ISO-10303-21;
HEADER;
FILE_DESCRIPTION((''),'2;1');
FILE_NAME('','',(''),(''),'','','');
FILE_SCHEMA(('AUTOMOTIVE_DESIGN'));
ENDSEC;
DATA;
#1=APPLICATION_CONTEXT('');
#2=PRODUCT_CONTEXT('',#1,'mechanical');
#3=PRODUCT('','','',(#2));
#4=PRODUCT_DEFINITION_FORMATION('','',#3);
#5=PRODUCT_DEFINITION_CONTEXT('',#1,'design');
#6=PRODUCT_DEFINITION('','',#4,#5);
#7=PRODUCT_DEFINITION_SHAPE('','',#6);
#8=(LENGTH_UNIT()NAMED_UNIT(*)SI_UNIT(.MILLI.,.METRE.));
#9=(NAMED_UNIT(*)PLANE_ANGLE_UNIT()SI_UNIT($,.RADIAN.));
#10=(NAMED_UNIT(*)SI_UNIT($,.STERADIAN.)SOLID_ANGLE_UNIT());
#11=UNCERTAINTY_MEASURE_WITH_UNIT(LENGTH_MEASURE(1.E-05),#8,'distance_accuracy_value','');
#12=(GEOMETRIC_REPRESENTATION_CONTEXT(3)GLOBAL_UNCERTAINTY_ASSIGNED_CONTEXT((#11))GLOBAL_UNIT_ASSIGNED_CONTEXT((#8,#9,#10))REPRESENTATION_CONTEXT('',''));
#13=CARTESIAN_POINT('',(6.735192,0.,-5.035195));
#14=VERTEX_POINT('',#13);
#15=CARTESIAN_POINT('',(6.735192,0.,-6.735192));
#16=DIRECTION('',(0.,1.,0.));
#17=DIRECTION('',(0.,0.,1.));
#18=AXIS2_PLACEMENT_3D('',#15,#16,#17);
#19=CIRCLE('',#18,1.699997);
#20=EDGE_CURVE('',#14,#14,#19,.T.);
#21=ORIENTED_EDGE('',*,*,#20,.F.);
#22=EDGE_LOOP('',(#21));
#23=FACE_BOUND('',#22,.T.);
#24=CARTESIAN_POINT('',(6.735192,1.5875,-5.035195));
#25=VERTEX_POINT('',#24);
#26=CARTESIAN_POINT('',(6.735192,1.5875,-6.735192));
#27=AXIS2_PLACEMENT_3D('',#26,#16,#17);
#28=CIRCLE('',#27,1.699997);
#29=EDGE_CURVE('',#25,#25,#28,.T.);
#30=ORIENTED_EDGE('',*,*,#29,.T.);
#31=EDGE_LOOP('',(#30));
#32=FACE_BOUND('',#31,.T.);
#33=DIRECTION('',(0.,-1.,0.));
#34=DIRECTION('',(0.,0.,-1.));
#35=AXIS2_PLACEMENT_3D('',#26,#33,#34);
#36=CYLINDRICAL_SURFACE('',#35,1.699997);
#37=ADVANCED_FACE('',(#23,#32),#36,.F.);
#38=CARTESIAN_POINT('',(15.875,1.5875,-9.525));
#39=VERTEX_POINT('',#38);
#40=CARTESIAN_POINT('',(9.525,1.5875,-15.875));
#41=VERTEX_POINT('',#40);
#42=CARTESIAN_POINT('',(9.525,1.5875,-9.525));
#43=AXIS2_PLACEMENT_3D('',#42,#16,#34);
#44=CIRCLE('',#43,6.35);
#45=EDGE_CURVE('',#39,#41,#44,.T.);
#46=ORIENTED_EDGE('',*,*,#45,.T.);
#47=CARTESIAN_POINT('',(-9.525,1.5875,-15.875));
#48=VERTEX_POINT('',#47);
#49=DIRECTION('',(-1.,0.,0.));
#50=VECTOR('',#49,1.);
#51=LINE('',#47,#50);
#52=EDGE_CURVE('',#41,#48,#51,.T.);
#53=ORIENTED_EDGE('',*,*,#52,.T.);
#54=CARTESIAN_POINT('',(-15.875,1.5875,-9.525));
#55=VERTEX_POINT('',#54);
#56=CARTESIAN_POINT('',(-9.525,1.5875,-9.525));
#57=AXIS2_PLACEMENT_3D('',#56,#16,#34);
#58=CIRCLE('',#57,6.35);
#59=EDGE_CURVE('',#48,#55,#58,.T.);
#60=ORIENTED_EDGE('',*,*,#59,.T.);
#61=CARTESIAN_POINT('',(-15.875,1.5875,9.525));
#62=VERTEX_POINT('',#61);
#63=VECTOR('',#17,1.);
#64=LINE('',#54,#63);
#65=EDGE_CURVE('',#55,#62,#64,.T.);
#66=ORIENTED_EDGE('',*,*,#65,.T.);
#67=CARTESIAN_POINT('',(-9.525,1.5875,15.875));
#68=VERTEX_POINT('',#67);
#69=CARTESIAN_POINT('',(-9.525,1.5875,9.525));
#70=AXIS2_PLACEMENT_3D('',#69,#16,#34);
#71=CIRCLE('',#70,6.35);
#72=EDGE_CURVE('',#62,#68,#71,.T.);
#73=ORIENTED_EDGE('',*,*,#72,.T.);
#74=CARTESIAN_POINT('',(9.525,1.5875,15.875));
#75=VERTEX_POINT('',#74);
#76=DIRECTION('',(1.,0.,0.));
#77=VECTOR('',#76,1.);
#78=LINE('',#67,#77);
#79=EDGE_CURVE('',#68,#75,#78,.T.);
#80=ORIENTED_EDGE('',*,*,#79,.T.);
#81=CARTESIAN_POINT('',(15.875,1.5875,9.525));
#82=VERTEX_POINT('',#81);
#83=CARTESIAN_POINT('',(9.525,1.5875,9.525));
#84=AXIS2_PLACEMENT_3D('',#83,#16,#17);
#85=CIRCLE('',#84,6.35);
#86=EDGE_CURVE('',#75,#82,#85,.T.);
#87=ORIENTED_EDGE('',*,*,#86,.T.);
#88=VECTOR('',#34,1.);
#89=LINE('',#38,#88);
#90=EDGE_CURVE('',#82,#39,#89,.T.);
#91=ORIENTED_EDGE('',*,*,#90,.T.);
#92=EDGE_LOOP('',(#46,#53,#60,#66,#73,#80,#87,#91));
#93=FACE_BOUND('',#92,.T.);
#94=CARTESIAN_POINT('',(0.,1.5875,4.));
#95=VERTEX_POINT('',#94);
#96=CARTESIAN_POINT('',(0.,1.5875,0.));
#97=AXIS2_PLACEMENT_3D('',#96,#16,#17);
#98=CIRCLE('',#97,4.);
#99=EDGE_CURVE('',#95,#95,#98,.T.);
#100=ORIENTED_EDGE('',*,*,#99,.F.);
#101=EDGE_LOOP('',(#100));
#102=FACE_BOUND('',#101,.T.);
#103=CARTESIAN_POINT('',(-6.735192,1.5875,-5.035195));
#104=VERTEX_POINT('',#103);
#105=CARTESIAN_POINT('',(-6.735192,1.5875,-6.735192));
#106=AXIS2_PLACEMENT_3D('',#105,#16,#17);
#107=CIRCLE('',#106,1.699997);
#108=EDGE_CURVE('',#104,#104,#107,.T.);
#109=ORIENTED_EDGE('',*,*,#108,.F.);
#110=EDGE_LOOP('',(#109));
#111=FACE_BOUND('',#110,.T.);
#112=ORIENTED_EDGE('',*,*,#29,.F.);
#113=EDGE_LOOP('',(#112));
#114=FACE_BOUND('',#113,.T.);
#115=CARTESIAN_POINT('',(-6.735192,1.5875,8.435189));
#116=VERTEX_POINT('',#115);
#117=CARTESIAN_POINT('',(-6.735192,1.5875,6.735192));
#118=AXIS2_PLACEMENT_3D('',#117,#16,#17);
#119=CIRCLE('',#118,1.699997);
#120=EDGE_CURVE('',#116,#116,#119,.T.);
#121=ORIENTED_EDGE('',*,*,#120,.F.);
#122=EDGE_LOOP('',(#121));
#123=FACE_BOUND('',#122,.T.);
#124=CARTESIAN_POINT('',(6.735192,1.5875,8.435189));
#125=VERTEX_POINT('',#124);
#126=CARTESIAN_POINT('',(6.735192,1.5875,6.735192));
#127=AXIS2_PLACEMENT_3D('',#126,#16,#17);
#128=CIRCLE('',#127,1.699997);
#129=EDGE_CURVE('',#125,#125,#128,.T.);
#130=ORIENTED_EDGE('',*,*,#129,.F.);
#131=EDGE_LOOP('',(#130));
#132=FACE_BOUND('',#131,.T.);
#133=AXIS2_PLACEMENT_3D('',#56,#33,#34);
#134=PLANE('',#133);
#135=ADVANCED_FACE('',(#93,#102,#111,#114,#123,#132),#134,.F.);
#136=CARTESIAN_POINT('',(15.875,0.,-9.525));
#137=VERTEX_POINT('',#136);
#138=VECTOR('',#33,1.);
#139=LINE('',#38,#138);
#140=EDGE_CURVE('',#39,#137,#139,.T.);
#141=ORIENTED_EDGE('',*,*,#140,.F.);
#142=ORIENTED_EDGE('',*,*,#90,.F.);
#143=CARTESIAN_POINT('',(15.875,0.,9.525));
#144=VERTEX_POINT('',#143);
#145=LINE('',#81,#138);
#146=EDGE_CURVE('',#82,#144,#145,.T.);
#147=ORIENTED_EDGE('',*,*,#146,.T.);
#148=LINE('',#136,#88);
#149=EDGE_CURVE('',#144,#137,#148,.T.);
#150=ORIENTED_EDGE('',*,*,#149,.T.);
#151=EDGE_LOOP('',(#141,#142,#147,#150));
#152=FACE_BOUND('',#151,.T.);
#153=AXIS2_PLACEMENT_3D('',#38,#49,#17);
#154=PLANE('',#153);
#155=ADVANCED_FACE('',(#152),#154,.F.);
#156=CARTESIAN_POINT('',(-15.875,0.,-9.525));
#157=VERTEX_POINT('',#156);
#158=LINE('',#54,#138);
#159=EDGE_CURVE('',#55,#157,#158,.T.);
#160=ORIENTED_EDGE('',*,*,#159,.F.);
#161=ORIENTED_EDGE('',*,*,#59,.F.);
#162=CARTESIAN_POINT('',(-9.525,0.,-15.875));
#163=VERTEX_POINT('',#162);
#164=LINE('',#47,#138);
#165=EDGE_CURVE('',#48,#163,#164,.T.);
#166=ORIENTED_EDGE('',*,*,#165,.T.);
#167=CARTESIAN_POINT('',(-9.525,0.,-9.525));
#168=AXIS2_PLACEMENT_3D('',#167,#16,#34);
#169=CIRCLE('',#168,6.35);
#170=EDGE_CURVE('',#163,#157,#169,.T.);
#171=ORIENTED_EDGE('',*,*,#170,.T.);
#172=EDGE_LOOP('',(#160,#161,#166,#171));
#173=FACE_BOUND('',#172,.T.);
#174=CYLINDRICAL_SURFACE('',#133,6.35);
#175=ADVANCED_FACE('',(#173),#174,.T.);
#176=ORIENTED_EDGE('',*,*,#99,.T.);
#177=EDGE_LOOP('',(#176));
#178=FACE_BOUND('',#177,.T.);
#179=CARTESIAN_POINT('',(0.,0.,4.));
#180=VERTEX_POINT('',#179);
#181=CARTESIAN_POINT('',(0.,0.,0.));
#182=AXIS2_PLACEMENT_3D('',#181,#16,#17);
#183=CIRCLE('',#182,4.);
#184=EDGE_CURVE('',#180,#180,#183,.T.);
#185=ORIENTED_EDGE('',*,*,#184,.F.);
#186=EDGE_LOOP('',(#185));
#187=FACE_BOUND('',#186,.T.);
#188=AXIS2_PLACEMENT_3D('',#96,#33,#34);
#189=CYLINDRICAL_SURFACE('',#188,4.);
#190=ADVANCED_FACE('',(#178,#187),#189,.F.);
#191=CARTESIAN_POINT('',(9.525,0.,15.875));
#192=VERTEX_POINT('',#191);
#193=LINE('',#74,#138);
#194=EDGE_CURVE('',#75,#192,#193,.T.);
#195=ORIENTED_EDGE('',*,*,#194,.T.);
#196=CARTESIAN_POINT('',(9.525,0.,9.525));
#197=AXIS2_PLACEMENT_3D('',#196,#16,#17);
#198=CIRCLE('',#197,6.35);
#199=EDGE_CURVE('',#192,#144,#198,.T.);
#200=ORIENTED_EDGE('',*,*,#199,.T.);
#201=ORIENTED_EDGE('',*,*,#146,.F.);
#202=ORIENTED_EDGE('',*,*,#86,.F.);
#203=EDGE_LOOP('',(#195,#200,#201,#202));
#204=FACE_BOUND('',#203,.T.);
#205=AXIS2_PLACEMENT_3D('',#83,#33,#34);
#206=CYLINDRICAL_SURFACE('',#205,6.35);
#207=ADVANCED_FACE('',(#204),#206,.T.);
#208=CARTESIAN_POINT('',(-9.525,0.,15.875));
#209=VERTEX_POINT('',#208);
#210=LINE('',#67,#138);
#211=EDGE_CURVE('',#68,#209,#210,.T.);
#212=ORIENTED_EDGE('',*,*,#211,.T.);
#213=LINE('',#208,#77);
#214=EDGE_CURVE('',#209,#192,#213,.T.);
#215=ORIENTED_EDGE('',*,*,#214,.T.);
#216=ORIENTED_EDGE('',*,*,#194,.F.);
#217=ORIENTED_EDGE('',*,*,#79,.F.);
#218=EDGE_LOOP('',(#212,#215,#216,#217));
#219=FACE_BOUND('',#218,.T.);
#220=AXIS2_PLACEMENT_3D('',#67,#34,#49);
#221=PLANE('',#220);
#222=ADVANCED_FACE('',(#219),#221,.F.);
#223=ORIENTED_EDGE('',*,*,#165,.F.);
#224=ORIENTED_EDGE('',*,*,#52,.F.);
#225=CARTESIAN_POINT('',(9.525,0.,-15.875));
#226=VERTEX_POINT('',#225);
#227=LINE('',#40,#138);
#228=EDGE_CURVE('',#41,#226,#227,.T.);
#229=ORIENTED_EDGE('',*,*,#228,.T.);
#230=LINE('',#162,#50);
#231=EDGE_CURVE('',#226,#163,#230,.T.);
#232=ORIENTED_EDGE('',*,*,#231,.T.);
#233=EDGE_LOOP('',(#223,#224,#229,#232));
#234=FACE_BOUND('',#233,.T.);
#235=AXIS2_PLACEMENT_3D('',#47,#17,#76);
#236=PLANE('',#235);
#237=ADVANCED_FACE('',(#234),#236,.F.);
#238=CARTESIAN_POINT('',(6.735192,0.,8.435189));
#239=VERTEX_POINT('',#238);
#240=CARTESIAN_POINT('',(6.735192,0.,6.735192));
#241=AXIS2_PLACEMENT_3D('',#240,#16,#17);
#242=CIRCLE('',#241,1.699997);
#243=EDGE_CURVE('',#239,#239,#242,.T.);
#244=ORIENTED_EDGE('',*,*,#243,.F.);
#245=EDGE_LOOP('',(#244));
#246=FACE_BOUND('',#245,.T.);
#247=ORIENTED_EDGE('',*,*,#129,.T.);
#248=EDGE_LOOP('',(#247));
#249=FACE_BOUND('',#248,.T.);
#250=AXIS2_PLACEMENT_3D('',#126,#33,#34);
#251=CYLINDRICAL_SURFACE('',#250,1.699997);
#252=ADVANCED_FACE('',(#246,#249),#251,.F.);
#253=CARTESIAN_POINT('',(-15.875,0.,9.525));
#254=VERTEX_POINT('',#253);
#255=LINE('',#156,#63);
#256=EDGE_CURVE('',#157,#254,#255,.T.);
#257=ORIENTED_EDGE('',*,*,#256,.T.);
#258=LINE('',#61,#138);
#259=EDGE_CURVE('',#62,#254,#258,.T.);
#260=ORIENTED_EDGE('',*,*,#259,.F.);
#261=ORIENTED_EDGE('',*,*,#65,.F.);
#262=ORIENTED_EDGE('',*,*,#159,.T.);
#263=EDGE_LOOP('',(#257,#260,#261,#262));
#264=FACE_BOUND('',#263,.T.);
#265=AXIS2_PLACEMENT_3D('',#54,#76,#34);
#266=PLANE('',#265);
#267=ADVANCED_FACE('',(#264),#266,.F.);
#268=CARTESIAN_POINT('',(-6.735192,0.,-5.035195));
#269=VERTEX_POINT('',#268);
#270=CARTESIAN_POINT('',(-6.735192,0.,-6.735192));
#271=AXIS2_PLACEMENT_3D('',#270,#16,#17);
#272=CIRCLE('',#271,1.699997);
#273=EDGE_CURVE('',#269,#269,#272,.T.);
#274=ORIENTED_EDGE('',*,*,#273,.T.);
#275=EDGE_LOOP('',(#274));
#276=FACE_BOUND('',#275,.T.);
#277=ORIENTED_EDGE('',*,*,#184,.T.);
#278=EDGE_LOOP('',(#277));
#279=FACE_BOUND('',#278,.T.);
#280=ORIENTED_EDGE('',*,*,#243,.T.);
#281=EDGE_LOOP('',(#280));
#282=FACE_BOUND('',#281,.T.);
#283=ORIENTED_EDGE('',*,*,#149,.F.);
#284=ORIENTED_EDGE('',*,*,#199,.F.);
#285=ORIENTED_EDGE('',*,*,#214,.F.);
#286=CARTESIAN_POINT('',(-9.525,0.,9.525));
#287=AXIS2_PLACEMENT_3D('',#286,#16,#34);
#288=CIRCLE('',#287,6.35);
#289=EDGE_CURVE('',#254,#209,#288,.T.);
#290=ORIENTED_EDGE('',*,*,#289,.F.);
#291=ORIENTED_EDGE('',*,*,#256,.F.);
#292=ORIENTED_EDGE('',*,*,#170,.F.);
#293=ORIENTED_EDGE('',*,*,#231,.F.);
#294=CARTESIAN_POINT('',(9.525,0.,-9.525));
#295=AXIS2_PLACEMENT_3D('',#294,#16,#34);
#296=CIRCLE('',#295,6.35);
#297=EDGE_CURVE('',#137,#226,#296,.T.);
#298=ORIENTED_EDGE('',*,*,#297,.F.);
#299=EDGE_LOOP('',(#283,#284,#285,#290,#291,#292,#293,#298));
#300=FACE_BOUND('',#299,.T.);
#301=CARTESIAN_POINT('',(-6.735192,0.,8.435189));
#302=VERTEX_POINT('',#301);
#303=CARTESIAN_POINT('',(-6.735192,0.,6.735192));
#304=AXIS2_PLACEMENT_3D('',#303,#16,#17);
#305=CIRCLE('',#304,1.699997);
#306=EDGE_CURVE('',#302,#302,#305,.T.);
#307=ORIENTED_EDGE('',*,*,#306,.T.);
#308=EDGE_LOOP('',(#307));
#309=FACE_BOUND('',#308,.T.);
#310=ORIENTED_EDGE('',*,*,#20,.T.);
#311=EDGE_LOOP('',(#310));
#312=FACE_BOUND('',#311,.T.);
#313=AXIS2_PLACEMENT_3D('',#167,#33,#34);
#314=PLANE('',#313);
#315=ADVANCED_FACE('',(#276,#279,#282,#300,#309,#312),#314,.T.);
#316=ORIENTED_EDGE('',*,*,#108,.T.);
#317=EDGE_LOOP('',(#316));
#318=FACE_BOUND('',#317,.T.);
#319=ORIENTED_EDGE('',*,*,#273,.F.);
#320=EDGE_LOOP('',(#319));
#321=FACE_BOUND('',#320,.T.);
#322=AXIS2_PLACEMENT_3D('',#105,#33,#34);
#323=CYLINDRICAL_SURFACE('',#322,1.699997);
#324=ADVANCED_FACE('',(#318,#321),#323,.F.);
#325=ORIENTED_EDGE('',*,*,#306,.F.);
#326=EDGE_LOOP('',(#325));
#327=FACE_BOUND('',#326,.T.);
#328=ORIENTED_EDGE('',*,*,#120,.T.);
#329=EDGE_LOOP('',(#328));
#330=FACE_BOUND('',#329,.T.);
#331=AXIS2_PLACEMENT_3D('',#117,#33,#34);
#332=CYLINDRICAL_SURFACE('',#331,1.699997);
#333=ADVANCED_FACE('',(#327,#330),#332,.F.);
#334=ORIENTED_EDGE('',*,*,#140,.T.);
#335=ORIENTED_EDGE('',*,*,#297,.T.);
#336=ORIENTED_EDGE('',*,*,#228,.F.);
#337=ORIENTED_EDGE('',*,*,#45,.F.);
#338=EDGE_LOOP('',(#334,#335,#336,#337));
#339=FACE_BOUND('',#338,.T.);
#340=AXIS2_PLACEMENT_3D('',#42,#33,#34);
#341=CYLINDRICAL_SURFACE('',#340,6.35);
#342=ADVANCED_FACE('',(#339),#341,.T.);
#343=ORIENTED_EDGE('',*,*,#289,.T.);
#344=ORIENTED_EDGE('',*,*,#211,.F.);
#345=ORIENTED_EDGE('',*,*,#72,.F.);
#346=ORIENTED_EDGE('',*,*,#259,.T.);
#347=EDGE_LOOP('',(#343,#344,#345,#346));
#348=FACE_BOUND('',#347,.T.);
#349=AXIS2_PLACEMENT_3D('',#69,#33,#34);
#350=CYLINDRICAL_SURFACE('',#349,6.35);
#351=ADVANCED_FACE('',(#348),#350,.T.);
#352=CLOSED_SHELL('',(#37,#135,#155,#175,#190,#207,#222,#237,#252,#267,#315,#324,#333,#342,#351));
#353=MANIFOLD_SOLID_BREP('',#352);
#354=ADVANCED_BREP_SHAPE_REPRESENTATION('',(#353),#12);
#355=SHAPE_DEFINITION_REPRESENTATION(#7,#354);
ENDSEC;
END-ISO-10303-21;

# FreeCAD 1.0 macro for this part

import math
import FreeCAD as App
import Part
import Sketcher

V = App.Vector
Q = App.Units.Quantity

doc = App.newDocument("Part")
body = doc.addObject("PartDesign::Body", "Body")

# Sketch on XZ plane
sketch1 = doc.addObject("Sketcher::SketchObject", "Sketch")
body.addObject(sketch1)
sketch1.AttachmentSupport = (doc.XZ_Plane, [""])
sketch1.MapMode = "FlatFace"
sketch1.addGeometry(Part.LineSegment(V(9.5, -15.9, 0), V(-9.5, -15.9, 0)), False)
sketch1.addGeometry(Part.ArcOfCircle(Part.Circle(V(-9.5, -9.5, 0), V(0, 0, 1), 6.3), math.radians(180), math.radians(270)), False)
sketch1.addGeometry(Part.LineSegment(V(-15.9, -9.5, 0), V(-15.9, 9.5, 0)), False)
sketch1.addGeometry(Part.ArcOfCircle(Part.Circle(V(-9.5, 9.5, 0), V(0, 0, 1), 6.3), math.radians(90), math.radians(180)), False)
sketch1.addGeometry(Part.LineSegment(V(-9.5, 15.9, 0), V(9.5, 15.9, 0)), False)
sketch1.addGeometry(Part.ArcOfCircle(Part.Circle(V(9.5, 9.5, 0), V(0, 0, 1), 6.3), math.radians(0), math.radians(90)), False)
sketch1.addGeometry(Part.LineSegment(V(15.9, 9.5, 0), V(15.9, -9.5, 0)), False)
sketch1.addGeometry(Part.ArcOfCircle(Part.Circle(V(9.5, -9.5, 0), V(0, 0, 1), 6.3), math.radians(-90), math.radians(0)), False)
sketch1.addGeometry(Part.Circle(V(6.7, 6.7, 0), V(0, 0, 1), 1.7), False)
sketch1.addGeometry(Part.Circle(V(-6.7, 6.7, 0), V(0, 0, 1), 1.7), False)
sketch1.addGeometry(Part.Circle(V(6.7, -6.7, 0), V(0, 0, 1), 1.7), False)
sketch1.addGeometry(Part.Circle(V(0, 0, 0), V(0, 0, 1), 4), False)
sketch1.addGeometry(Part.Circle(V(-6.7, -6.7, 0), V(0, 0, 1), 1.7), False)
sketch1.addConstraint(Sketcher.Constraint("Tangent", 0, 2, 1, 2))
sketch1.addConstraint(Sketcher.Constraint("Tangent", 1, 1, 2, 1))
sketch1.addConstraint(Sketcher.Constraint("Tangent", 2, 2, 3, 2))
sketch1.addConstraint(Sketcher.Constraint("Tangent", 3, 1, 4, 1))
sketch1.addConstraint(Sketcher.Constraint("Tangent", 4, 2, 5, 2))
sketch1.addConstraint(Sketcher.Constraint("Tangent", 5, 1, 6, 1))
sketch1.addConstraint(Sketcher.Constraint("Tangent", 6, 2, 7, 2))
sketch1.addConstraint(Sketcher.Constraint("Tangent", 7, 1, 0, 1))
sketch1.addConstraint(Sketcher.Constraint("Horizontal", 0))
sketch1.addConstraint(Sketcher.Constraint("Vertical", 2))
sketch1.addConstraint(Sketcher.Constraint("Horizontal", 4))
sketch1.addConstraint(Sketcher.Constraint("Vertical", 6))
sketch1.addConstraint(Sketcher.Constraint("Coincident", 11, 3, -1, 1))
sketch1.addConstraint(Sketcher.Constraint("Equal", 1, 3))
sketch1.addConstraint(Sketcher.Constraint("Equal", 3, 5))
sketch1.addConstraint(Sketcher.Constraint("Equal", 5, 7))
sketch1.addConstraint(Sketcher.Constraint("Equal", 8, 9))
sketch1.addConstraint(Sketcher.Constraint("Equal", 9, 10))
sketch1.addConstraint(Sketcher.Constraint("Equal", 10, 12))
sketch1.addConstraint(Sketcher.Constraint("Symmetric", 1, 3, 5, 3, -1, 1))
sketch1.addConstraint(Sketcher.Constraint("Symmetric", 9, 3, 10, 3, -1, 1))
sketch1.addConstraint(Sketcher.Constraint("Symmetric", 8, 3, 12, 3, -1, 1))
sketch1.addConstraint(Sketcher.Constraint("Symmetric", 8, 3, 9, 3, -2))
sketch1.addConstraint(Sketcher.Constraint("Equal", 4, 2))
sketch1.addConstraint(Sketcher.Constraint("Radius", 1, Q("0.25 in")))
sketch1.addConstraint(Sketcher.Constraint("DistanceX", 0, 2, 0, 1, Q("0.75 in")))
sketch1.addConstraint(Sketcher.Constraint("Diameter", 11, Q("8 mm")))
sketch1.addConstraint(Sketcher.Constraint("Diameter", 8, Q("3.399993 mm")))
sketch1.addConstraint(Sketcher.Constraint("DistanceX", -1, 1, 8, 3, Q("6.735192 mm")))
sketch1.addConstraint(Sketcher.Constraint("DistanceY", -1, 1, 8, 3, Q("6.735192 mm")))
pad1 = doc.addObject("PartDesign::Pad", "Pad")
body.addObject(pad1)
pad1.Profile = sketch1
pad1.Length = Q("0.0625 in")
pad1.Reversed = True

doc.recompute()
